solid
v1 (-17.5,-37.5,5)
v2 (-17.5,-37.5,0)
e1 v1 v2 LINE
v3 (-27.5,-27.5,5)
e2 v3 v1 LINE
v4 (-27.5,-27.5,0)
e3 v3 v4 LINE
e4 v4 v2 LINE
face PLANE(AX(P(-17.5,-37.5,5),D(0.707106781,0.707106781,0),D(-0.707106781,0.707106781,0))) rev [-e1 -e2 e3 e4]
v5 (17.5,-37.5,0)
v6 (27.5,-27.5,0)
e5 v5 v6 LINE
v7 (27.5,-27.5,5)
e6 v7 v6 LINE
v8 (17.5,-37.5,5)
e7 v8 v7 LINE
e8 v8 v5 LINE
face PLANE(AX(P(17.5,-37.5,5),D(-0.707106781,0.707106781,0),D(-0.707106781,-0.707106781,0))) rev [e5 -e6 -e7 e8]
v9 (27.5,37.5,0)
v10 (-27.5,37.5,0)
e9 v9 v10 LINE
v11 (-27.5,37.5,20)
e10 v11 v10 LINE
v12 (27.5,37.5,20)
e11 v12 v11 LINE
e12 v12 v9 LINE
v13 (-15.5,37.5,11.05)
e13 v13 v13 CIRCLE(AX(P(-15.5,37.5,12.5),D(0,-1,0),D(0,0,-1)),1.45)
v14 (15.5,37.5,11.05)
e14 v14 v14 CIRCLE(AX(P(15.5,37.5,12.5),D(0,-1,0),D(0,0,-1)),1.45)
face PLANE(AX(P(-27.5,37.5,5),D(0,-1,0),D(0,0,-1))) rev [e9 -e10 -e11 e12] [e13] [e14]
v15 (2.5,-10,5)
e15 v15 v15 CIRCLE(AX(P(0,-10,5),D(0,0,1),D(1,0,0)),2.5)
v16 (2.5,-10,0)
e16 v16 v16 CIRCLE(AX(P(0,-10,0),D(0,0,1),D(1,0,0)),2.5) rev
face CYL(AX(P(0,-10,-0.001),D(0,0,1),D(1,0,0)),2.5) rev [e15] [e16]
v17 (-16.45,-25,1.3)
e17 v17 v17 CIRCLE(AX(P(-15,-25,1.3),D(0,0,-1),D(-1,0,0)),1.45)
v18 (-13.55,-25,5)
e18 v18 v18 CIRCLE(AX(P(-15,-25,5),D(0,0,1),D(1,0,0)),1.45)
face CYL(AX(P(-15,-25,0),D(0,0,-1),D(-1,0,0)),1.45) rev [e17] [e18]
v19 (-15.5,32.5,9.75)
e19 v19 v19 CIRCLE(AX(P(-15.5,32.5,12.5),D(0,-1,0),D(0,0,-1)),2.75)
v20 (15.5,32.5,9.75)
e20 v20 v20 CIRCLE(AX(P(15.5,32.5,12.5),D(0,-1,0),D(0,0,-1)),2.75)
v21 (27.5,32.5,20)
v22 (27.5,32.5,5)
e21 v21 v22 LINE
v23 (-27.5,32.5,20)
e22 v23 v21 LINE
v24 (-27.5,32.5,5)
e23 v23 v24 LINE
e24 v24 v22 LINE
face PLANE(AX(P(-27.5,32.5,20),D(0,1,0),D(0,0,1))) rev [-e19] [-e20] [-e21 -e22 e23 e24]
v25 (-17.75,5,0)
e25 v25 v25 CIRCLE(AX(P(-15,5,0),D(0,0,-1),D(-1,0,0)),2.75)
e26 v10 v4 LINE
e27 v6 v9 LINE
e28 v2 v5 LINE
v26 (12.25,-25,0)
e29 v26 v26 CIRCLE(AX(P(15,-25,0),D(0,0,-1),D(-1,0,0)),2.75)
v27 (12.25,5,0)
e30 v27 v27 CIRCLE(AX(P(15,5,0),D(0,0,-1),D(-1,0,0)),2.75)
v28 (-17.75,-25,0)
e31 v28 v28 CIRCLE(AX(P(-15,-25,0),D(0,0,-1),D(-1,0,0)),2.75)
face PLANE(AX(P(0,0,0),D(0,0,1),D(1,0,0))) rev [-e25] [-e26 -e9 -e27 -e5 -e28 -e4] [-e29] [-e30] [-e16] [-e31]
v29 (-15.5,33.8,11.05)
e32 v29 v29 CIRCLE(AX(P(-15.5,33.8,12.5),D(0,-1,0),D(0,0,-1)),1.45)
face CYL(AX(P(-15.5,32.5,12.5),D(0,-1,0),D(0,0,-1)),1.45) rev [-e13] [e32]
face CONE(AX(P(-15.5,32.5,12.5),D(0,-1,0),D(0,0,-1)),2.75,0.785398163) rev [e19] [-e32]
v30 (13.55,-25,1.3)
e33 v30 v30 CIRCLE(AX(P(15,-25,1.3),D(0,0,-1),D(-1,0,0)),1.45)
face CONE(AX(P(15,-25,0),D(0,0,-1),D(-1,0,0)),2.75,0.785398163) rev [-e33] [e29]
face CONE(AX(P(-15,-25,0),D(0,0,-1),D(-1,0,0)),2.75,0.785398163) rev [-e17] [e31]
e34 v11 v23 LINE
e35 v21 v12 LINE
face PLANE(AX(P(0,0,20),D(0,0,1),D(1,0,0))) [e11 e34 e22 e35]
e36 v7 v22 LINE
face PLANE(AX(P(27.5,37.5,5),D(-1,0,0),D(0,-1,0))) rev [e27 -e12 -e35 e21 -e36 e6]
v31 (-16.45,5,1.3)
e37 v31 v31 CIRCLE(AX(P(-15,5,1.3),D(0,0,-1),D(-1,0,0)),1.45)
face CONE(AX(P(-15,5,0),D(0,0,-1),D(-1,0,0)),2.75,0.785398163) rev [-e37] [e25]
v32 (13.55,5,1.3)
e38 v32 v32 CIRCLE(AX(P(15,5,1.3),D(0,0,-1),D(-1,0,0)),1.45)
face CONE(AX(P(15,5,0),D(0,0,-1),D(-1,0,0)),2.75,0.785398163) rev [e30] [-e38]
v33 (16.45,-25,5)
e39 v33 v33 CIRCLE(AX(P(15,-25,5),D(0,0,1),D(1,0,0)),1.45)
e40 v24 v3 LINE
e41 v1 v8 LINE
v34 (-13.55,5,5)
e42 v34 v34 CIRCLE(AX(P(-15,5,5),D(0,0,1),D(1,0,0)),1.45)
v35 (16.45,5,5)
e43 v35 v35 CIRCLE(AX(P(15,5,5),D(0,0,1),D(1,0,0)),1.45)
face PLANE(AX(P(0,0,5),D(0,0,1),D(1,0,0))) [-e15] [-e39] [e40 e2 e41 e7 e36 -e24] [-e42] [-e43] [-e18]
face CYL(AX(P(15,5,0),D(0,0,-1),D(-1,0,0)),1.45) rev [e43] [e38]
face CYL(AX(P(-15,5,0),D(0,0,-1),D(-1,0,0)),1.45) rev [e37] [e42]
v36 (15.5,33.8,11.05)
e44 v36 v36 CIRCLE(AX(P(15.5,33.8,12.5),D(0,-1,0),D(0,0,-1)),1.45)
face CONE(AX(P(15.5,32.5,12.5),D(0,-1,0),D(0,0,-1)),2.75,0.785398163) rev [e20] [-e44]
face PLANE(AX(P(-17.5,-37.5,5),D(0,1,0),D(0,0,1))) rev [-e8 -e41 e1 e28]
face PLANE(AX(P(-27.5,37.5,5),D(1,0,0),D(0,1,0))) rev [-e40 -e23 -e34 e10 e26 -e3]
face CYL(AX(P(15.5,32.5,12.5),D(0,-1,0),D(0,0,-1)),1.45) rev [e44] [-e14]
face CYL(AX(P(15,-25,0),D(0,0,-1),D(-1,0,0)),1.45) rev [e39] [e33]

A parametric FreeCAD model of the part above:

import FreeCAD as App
import Part
import Sketcher

V = App.Vector
Q = App.Units.Quantity

doc = App.newDocument("Part")
body = doc.addObject("PartDesign::Body", "Body")

# Sketch on XY plane
sketch1 = body.newObject("Sketcher::SketchObject", "Sketch")
sketch1.AttachmentSupport = (doc.getObject("XY_Plane"), [""])
sketch1.MapMode = "FlatFace"
sketch1.addGeometry([
    Part.LineSegment(V(-28, -28, 0), V(-18, -38, 0)),  # 0
    Part.LineSegment(V(-18, -38, 0), V(18, -38, 0)),  # 1
    Part.LineSegment(V(18, -38, 0), V(28, -28, 0)),  # 2
    Part.LineSegment(V(28, -28, 0), V(28, 38, 0)),  # 3
    Part.LineSegment(V(28, 38, 0), V(-28, 38, 0)),  # 4
    Part.LineSegment(V(-28, 38, 0), V(-28, -28, 0)),  # 5
], False)
sketch1.addConstraint([
    Sketcher.Constraint("Coincident", 0, 2, 1, 1),
    Sketcher.Constraint("Coincident", 1, 2, 2, 1),
    Sketcher.Constraint("Coincident", 2, 2, 3, 1),
    Sketcher.Constraint("Coincident", 3, 2, 4, 1),
    Sketcher.Constraint("Coincident", 4, 2, 5, 1),
    Sketcher.Constraint("Coincident", 5, 2, 0, 1),
    Sketcher.Constraint("Horizontal", 1),
    Sketcher.Constraint("Vertical", 3),
    Sketcher.Constraint("Horizontal", 4),
    Sketcher.Constraint("Vertical", 5),
    Sketcher.Constraint("Symmetric", 2, 2, 5, 2, -2),
    Sketcher.Constraint("Perpendicular", 0, 2),
    Sketcher.Constraint("Equal", 0, 2),
    Sketcher.Constraint("DistanceX", 1, 1, 1, 2, Q("35 mm")),
    Sketcher.Constraint("DistanceX", 4, 2, 4, 1, Q("55 mm")),
    Sketcher.Constraint("DistanceY", 3, 1, 3, 2, Q("65 mm")),
    Sketcher.Constraint("DistanceY", 0, 2, -1, 1, Q("37.5 mm")),
])
pad1 = body.newObject("PartDesign::Pad", "Pad")
pad1.Profile = sketch1
pad1.Length = 5

# Sketch on XY plane
sketch2 = body.newObject("Sketcher::SketchObject", "Sketch001")
sketch2.AttachmentSupport = (doc.getObject("XY_Plane"), [""])
sketch2.MapMode = "FlatFace"
sketch2.AttachmentOffset = App.Placement(V(0, 0, 5), App.Rotation())
sketch2.addGeometry(Part.Circle(V(0, -10, 0), V(0, 0, 1), 2.5), False)
sketch2.addConstraint([
    Sketcher.Constraint("PointOnObject", 0, 3, -2),
    Sketcher.Constraint("Diameter", 0, Q("5 mm")),
    Sketcher.Constraint("DistanceY", 0, 3, -1, 1, Q("10 mm")),
])
pocket1 = body.newObject("PartDesign::Pocket", "Pocket")
pocket1.Profile = sketch2
pocket1.Type = "UpToFirst"

# Sketch on XY plane
sketch3 = body.newObject("Sketcher::SketchObject", "Sketch002")
sketch3.AttachmentSupport = (doc.getObject("XY_Plane"), [""])
sketch3.MapMode = "FlatFace"
sketch3.AttachmentOffset = App.Placement(V(0, 0, 5), App.Rotation())
sketch3.addGeometry([
    Part.LineSegment(V(-28, 38, 0), V(-28, 32, 0)),
    Part.LineSegment(V(-28, 32, 0), V(28, 32, 0)),
    Part.LineSegment(V(28, 32, 0), V(28, 38, 0)),
    Part.LineSegment(V(28, 38, 0), V(-28, 38, 0)),
], False)
sketch3.addConstraint([
    Sketcher.Constraint("Coincident", 0, 2, 1, 1),
    Sketcher.Constraint("Coincident", 1, 2, 2, 1),
    Sketcher.Constraint("Coincident", 2, 2, 3, 1),
    Sketcher.Constraint("Coincident", 3, 2, 0, 1),
    Sketcher.Constraint("Vertical", 0),
    Sketcher.Constraint("Horizontal", 1),
    Sketcher.Constraint("Vertical", 2),
    Sketcher.Constraint("Horizontal", 3),
    Sketcher.Constraint("DistanceX", 1, 1, 1, 2, Q("55 mm")),
    Sketcher.Constraint("DistanceY", 0, 2, 0, 1, Q("5 mm")),
    Sketcher.Constraint("DistanceX", 0, 2, -1, 1, Q("27.5 mm")),
    Sketcher.Constraint("DistanceY", -1, 1, 0, 2, Q("32.5 mm")),
])
pad2 = body.newObject("PartDesign::Pad", "Pad001")
pad2.Profile = sketch3
pad2.Length = 15

# Sketch on XZ plane
sketch4 = body.newObject("Sketcher::SketchObject", "Sketch003")
sketch4.AttachmentSupport = (doc.getObject("XZ_Plane"), [""])
sketch4.MapMode = "FlatFace"
sketch4.AttachmentOffset = App.Placement(V(0, 0, -32.5), App.Rotation())
sketch4.addGeometry([
    Part.Circle(V(15.5, 12.5, 0), V(0, 0, 1), 1.4),
    Part.Circle(V(-15.5, 12.5, 0), V(0, 0, 1), 1.4),
], False)
sketch4.addConstraint([
    Sketcher.Constraint("Equal", 0, 1),
    Sketcher.Constraint("Symmetric", 0, 3, 1, 3, -2),
    Sketcher.Constraint("Diameter", 0, Q("2.9 mm")),
    Sketcher.Constraint("DistanceX", 1, 3, 0, 3, Q("31 mm")),
    Sketcher.Constraint("DistanceY", -1, 1, 0, 3, Q("12.5 mm")),
])
doc.recompute()
hole = body.newObject("PartDesign::Hole", "Hole")
hole.Profile = sketch4
hole.ThreadType = "None"
hole.Diameter = 2.9
hole.DepthType = "ThroughAll"
hole.HoleCutType = "Countersink"
hole.HoleCutDiameter = 5.5
hole.HoleCutCountersinkAngle = 90

# Sketch on XY plane
sketch5 = body.newObject("Sketcher::SketchObject", "Sketch004")
sketch5.AttachmentSupport = (doc.getObject("XY_Plane"), [""])
sketch5.MapMode = "FlatFace"
sketch5.addGeometry([
    Part.Circle(V(15, 5, 0), V(0, 0, 1), 1.4),
    Part.Circle(V(-15, 5, 0), V(0, 0, 1), 1.4),
    Part.Circle(V(15, -25, 0), V(0, 0, 1), 1.4),
    Part.Circle(V(-15, -25, 0), V(0, 0, 1), 1.4),
], False)
sketch5.addConstraint([
    Sketcher.Constraint("Equal", 0, 1),
    Sketcher.Constraint("Equal", 1, 2),
    Sketcher.Constraint("Equal", 2, 3),
    Sketcher.Constraint("Symmetric", 0, 3, 1, 3, -2),
    Sketcher.Constraint("Symmetric", 2, 3, 3, 3, -2),
    Sketcher.Constraint("Vertical", 0, 3, 2, 3),
    Sketcher.Constraint("Diameter", 0, Q("2.9 mm")),
    Sketcher.Constraint("DistanceX", -1, 1, 0, 3, Q("15 mm")),
    Sketcher.Constraint("DistanceY", -1, 1, 0, 3, Q("5 mm")),
    Sketcher.Constraint("DistanceY", 2, 3, -1, 1, Q("25 mm")),
])
doc.recompute()
hole2 = body.newObject("PartDesign::Hole", "Hole001")
hole2.Profile = sketch5
hole2.ThreadType = "None"
hole2.Diameter = 2.9
hole2.DepthType = "Dimension"
hole2.Depth = 5
hole2.DrillPoint = "Flat"
hole2.HoleCutType = "Countersink"
hole2.HoleCutDiameter = 5.5
hole2.HoleCutCountersinkAngle = 90
hole2.Reversed = True

doc.recompute()
